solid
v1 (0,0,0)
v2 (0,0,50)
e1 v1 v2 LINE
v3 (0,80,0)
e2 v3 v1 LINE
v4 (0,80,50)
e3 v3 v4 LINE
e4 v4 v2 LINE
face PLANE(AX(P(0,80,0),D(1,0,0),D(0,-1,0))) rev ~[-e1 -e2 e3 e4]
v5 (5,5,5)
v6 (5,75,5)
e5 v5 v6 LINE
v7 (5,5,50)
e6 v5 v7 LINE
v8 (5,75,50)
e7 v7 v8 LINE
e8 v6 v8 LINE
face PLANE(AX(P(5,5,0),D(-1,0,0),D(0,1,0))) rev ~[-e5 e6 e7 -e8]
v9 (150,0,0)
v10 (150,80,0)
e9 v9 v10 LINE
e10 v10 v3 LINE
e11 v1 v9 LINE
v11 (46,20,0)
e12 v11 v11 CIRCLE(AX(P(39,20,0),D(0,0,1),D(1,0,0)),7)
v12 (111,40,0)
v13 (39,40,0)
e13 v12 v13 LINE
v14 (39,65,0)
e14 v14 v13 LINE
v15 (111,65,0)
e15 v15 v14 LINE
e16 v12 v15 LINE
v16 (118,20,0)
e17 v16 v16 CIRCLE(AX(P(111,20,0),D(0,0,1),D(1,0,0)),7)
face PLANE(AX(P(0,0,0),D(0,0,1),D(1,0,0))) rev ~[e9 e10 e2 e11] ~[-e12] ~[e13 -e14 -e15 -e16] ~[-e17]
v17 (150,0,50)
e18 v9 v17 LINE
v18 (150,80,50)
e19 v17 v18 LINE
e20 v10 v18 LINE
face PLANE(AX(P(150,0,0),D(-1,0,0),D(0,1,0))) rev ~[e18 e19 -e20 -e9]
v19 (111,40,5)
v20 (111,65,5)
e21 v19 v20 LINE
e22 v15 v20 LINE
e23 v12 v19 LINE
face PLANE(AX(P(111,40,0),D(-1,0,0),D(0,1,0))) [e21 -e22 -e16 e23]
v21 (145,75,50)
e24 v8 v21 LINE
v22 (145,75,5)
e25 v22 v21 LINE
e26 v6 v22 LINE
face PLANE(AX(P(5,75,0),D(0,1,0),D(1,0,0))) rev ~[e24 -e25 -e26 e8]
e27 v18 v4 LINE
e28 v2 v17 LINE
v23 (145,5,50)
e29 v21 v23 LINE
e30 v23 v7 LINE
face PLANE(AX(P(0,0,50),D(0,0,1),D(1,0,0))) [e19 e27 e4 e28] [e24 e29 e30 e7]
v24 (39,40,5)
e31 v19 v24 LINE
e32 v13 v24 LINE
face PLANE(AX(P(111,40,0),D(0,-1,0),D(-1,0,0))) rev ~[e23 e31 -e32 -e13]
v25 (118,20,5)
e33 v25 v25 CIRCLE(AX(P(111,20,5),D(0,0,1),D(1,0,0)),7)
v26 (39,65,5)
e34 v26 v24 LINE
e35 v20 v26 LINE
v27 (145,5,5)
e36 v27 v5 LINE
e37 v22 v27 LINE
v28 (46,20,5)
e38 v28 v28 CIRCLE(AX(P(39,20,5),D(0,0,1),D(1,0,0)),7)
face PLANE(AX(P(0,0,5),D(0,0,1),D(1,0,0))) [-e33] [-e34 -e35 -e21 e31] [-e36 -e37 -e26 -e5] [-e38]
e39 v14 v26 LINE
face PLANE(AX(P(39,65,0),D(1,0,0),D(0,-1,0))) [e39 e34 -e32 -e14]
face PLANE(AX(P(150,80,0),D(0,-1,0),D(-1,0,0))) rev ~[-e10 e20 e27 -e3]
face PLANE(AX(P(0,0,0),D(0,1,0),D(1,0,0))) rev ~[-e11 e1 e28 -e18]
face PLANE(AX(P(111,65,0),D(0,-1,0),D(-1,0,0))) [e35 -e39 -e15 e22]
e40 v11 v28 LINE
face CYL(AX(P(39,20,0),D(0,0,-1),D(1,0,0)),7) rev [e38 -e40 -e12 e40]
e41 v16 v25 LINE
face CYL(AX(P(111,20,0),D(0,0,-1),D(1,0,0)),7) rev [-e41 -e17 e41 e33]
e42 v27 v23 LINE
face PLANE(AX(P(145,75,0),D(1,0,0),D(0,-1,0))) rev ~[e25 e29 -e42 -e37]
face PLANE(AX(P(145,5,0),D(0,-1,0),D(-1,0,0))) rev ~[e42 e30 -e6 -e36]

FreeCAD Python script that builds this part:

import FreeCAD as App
import Part
import Sketcher
from FreeCAD import Vector
Q = App.Units.Quantity


def add_polygon(sketch, points):
    """Adds a closed chain of lines whose ends are joined by coincident constraints."""
    first, n = sketch.GeometryCount, len(points)
    for a, b in zip(points, points[1:] + points[:1]):
        sketch.addGeometry(Part.LineSegment(App.Vector(*a, 0), App.Vector(*b, 0)), False)
    for i in range(n):
        sketch.addConstraint(Sketcher.Constraint("Coincident", first + i, 2, first + (i + 1) % n, 1))

doc = App.newDocument("Part")
body = doc.addObject("PartDesign::Body", "Body")

# Sketch on XY plane
sketch1 = doc.addObject("Sketcher::SketchObject", "Sketch")
body.addObject(sketch1)
sketch1.AttachmentSupport = (doc.XY_Plane, [""])
sketch1.MapMode = "FlatFace"
add_polygon(sketch1, [(145, 75), (5, 75), (5, 5), (145, 5)])  # lines 0-3
sketch1.addGeometry(Part.Circle(Vector(39, 20, 0), Vector(0, 0, 1), 7), False)  # 4
sketch1.addGeometry(Part.Circle(Vector(111, 20, 0), Vector(0, 0, 1), 7), False)  # 5
add_polygon(sketch1, [(111, 65), (111, 40), (39, 40), (39, 65)])  # lines 6-9
sketch1.addConstraint(Sketcher.Constraint("Horizontal", 0))
sketch1.addConstraint(Sketcher.Constraint("Vertical", 1))
sketch1.addConstraint(Sketcher.Constraint("Horizontal", 2))
sketch1.addConstraint(Sketcher.Constraint("Vertical", 3))
sketch1.addConstraint(Sketcher.Constraint("Vertical", 6))
sketch1.addConstraint(Sketcher.Constraint("Horizontal", 7))
sketch1.addConstraint(Sketcher.Constraint("Vertical", 8))
sketch1.addConstraint(Sketcher.Constraint("Horizontal", 9))
sketch1.addConstraint(Sketcher.Constraint("Equal", 4, 5))
sketch1.addConstraint(Sketcher.Constraint("Horizontal", 4, 3, 5, 3))
sketch1.addConstraint(Sketcher.Constraint("Vertical", 5, 3, 6, 2))
sketch1.addConstraint(Sketcher.Constraint("Vertical", 4, 3, 7, 2))
sketch1.addConstraint(Sketcher.Constraint("Diameter", 4, Q("14 mm")))
sketch1.addConstraint(Sketcher.Constraint("DistanceX", 7, 2, 7, 1, Q("72 mm")))
sketch1.addConstraint(Sketcher.Constraint("DistanceY", -1, 1, 4, 3, Q("20 mm")))
sketch1.addConstraint(Sketcher.Constraint("DistanceX", -1, 1, 0, 2, Q("5 mm")))
sketch1.addConstraint(Sketcher.Constraint("DistanceY", -1, 1, 1, 2, Q("5 mm")))
sketch1.addConstraint(Sketcher.Constraint("DistanceY", 5, 3, 6, 2, Q("20 mm")))
sketch1.addConstraint(Sketcher.Constraint("DistanceX", 0, 2, 0, 1, Q("140 mm")))
sketch1.addConstraint(Sketcher.Constraint("DistanceY", 1, 2, 1, 1, Q("70 mm")))
sketch1.addConstraint(Sketcher.Constraint("DistanceY", 6, 2, 6, 1, Q("25 mm")))
sketch1.addConstraint(Sketcher.Constraint("DistanceX", -1, 1, 4, 3, Q("39 mm")))
pad1 = doc.addObject("PartDesign::Pad", "Pad")
body.addObject(pad1)
pad1.Profile = sketch1
pad1.Length = 5

# Sketch on XY plane
sketch2 = doc.addObject("Sketcher::SketchObject", "Sketch001")
body.addObject(sketch2)
sketch2.AttachmentSupport = (doc.XY_Plane, [""])
sketch2.MapMode = "FlatFace"
add_polygon(sketch2, [(0, 80), (0, 0), (150, 0), (150, 80)])  # lines 0-3
add_polygon(sketch2, [(5, 5), (5, 75), (145, 75), (145, 5)])  # lines 4-7
sketch2.addConstraint(Sketcher.Constraint("Vertical", 0))
sketch2.addConstraint(Sketcher.Constraint("Horizontal", 1))
sketch2.addConstraint(Sketcher.Constraint("Vertical", 2))
sketch2.addConstraint(Sketcher.Constraint("Horizontal", 3))
sketch2.addConstraint(Sketcher.Constraint("Vertical", 4))
sketch2.addConstraint(Sketcher.Constraint("Horizontal", 5))
sketch2.addConstraint(Sketcher.Constraint("Vertical", 6))
sketch2.addConstraint(Sketcher.Constraint("Horizontal", 7))
sketch2.addConstraint(Sketcher.Constraint("Coincident", 0, 2, -1, 1))
sketch2.addConstraint(Sketcher.Constraint("DistanceX", 1, 1, 1, 2, Q("150 mm")))
sketch2.addConstraint(Sketcher.Constraint("DistanceY", 0, 2, 0, 1, Q("80 mm")))
sketch2.addConstraint(Sketcher.Constraint("DistanceX", -1, 1, 4, 2, Q("5 mm")))
sketch2.addConstraint(Sketcher.Constraint("DistanceY", -1, 1, 6, 2, Q("5 mm")))
sketch2.addConstraint(Sketcher.Constraint("DistanceY", 4, 2, 3, 2, Q("5 mm")))
sketch2.addConstraint(Sketcher.Constraint("DistanceX", 5, 2, 2, 2, Q("5 mm")))
pad2 = doc.addObject("PartDesign::Pad", "Pad001")
body.addObject(pad2)
pad2.Profile = sketch2
pad2.Length = 50

doc.recompute()
